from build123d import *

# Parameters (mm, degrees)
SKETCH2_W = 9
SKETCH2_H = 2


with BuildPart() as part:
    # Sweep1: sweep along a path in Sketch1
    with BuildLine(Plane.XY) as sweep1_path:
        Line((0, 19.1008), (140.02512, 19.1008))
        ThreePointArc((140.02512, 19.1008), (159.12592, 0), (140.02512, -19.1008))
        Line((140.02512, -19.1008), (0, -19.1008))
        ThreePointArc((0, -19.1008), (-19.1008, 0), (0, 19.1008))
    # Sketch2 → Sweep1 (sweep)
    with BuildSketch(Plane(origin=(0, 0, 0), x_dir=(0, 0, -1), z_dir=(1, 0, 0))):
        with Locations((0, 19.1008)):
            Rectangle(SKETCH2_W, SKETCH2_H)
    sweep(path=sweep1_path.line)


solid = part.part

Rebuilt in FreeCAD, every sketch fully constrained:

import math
import FreeCAD as App
import Part
import Sketcher

V = App.Vector


def add_polygon(sketch, points):
    """Adds a closed chain of lines whose ends are joined by coincident constraints."""
    first, n = sketch.GeometryCount, len(points)
    for a, b in zip(points, points[1:] + points[:1]):
        sketch.addGeometry(Part.LineSegment(App.Vector(*a, 0), App.Vector(*b, 0)), False)
    for i in range(n):
        sketch.addConstraint(Sketcher.Constraint("Coincident", first + i, 2, first + (i + 1) % n, 1))

doc = App.newDocument("Part")
body = doc.addObject("PartDesign::Body", "Body")

# Sketch on YZ plane
sketch1 = body.newObject("Sketcher::SketchObject", "Sketch")
sketch1.AttachmentSupport = (doc.getObject("YZ_Plane"), [""])
sketch1.MapMode = "FlatFace"
add_polygon(sketch1, [(20.1, 4.5), (18.1, 4.5), (18.1, -4.5), (20.1, -4.5)])  # lines 0-3
sketch1.addConstraint(Sketcher.Constraint("Horizontal", 0))
sketch1.addConstraint(Sketcher.Constraint("Vertical", 1))
sketch1.addConstraint(Sketcher.Constraint("Horizontal", 2))
sketch1.addConstraint(Sketcher.Constraint("Vertical", 3))
sketch1.addConstraint(Sketcher.Constraint("DistanceX", 0, 2, 0, 1, 2.0))
sketch1.addConstraint(Sketcher.Constraint("DistanceY", 1, 2, 1, 1, 9.0))
sketch1.addConstraint(Sketcher.Constraint("DistanceY", -1, 1, 0, 2, 4.5))
sketch1.addConstraint(Sketcher.Constraint("DistanceX", -1, 1, 0, 2, 18.1008))

# Sketch on XY plane
sketch2 = body.newObject("Sketcher::SketchObject", "Sketch001")
sketch2.AttachmentSupport = (doc.getObject("XY_Plane"), [""])
sketch2.MapMode = "FlatFace"
sketch2.addGeometry(Part.LineSegment(V(0, 19, 0), V(140, 19, 0)), False)
sketch2.addGeometry(Part.ArcOfCircle(Part.Circle(V(140, 0, 0), V(0, 0, 1), 19), math.radians(-90), math.radians(90)), False)
sketch2.addGeometry(Part.LineSegment(V(140, -19, 0), V(0, -19, 0)), False)
sketch2.addGeometry(Part.ArcOfCircle(Part.Circle(V(0, 0, 0), V(0, 0, 1), 19), math.radians(90), math.radians(270)), False)
sketch2.addConstraint(Sketcher.Constraint("Tangent", 0, 2, 1, 2))
sketch2.addConstraint(Sketcher.Constraint("Tangent", 1, 1, 2, 1))
sketch2.addConstraint(Sketcher.Constraint("Tangent", 2, 2, 3, 2))
sketch2.addConstraint(Sketcher.Constraint("Tangent", 3, 1, 0, 1))
sketch2.addConstraint(Sketcher.Constraint("Horizontal", 0))
sketch2.addConstraint(Sketcher.Constraint("Horizontal", 2))
sketch2.addConstraint(Sketcher.Constraint("Coincident", 3, 3, -1, 1))
sketch2.addConstraint(Sketcher.Constraint("Radius", 1, 19.1008))
sketch2.addConstraint(Sketcher.Constraint("DistanceX", 0, 1, 0, 2, 140.02512))
doc.recompute()

additivepipe = body.newObject("PartDesign::AdditivePipe", "AdditivePipe")
additivepipe.Profile = sketch1
additivepipe.Spine = (sketch2, ["Edge1", "Edge2", "Edge3", "Edge4"])

doc.recompute()
